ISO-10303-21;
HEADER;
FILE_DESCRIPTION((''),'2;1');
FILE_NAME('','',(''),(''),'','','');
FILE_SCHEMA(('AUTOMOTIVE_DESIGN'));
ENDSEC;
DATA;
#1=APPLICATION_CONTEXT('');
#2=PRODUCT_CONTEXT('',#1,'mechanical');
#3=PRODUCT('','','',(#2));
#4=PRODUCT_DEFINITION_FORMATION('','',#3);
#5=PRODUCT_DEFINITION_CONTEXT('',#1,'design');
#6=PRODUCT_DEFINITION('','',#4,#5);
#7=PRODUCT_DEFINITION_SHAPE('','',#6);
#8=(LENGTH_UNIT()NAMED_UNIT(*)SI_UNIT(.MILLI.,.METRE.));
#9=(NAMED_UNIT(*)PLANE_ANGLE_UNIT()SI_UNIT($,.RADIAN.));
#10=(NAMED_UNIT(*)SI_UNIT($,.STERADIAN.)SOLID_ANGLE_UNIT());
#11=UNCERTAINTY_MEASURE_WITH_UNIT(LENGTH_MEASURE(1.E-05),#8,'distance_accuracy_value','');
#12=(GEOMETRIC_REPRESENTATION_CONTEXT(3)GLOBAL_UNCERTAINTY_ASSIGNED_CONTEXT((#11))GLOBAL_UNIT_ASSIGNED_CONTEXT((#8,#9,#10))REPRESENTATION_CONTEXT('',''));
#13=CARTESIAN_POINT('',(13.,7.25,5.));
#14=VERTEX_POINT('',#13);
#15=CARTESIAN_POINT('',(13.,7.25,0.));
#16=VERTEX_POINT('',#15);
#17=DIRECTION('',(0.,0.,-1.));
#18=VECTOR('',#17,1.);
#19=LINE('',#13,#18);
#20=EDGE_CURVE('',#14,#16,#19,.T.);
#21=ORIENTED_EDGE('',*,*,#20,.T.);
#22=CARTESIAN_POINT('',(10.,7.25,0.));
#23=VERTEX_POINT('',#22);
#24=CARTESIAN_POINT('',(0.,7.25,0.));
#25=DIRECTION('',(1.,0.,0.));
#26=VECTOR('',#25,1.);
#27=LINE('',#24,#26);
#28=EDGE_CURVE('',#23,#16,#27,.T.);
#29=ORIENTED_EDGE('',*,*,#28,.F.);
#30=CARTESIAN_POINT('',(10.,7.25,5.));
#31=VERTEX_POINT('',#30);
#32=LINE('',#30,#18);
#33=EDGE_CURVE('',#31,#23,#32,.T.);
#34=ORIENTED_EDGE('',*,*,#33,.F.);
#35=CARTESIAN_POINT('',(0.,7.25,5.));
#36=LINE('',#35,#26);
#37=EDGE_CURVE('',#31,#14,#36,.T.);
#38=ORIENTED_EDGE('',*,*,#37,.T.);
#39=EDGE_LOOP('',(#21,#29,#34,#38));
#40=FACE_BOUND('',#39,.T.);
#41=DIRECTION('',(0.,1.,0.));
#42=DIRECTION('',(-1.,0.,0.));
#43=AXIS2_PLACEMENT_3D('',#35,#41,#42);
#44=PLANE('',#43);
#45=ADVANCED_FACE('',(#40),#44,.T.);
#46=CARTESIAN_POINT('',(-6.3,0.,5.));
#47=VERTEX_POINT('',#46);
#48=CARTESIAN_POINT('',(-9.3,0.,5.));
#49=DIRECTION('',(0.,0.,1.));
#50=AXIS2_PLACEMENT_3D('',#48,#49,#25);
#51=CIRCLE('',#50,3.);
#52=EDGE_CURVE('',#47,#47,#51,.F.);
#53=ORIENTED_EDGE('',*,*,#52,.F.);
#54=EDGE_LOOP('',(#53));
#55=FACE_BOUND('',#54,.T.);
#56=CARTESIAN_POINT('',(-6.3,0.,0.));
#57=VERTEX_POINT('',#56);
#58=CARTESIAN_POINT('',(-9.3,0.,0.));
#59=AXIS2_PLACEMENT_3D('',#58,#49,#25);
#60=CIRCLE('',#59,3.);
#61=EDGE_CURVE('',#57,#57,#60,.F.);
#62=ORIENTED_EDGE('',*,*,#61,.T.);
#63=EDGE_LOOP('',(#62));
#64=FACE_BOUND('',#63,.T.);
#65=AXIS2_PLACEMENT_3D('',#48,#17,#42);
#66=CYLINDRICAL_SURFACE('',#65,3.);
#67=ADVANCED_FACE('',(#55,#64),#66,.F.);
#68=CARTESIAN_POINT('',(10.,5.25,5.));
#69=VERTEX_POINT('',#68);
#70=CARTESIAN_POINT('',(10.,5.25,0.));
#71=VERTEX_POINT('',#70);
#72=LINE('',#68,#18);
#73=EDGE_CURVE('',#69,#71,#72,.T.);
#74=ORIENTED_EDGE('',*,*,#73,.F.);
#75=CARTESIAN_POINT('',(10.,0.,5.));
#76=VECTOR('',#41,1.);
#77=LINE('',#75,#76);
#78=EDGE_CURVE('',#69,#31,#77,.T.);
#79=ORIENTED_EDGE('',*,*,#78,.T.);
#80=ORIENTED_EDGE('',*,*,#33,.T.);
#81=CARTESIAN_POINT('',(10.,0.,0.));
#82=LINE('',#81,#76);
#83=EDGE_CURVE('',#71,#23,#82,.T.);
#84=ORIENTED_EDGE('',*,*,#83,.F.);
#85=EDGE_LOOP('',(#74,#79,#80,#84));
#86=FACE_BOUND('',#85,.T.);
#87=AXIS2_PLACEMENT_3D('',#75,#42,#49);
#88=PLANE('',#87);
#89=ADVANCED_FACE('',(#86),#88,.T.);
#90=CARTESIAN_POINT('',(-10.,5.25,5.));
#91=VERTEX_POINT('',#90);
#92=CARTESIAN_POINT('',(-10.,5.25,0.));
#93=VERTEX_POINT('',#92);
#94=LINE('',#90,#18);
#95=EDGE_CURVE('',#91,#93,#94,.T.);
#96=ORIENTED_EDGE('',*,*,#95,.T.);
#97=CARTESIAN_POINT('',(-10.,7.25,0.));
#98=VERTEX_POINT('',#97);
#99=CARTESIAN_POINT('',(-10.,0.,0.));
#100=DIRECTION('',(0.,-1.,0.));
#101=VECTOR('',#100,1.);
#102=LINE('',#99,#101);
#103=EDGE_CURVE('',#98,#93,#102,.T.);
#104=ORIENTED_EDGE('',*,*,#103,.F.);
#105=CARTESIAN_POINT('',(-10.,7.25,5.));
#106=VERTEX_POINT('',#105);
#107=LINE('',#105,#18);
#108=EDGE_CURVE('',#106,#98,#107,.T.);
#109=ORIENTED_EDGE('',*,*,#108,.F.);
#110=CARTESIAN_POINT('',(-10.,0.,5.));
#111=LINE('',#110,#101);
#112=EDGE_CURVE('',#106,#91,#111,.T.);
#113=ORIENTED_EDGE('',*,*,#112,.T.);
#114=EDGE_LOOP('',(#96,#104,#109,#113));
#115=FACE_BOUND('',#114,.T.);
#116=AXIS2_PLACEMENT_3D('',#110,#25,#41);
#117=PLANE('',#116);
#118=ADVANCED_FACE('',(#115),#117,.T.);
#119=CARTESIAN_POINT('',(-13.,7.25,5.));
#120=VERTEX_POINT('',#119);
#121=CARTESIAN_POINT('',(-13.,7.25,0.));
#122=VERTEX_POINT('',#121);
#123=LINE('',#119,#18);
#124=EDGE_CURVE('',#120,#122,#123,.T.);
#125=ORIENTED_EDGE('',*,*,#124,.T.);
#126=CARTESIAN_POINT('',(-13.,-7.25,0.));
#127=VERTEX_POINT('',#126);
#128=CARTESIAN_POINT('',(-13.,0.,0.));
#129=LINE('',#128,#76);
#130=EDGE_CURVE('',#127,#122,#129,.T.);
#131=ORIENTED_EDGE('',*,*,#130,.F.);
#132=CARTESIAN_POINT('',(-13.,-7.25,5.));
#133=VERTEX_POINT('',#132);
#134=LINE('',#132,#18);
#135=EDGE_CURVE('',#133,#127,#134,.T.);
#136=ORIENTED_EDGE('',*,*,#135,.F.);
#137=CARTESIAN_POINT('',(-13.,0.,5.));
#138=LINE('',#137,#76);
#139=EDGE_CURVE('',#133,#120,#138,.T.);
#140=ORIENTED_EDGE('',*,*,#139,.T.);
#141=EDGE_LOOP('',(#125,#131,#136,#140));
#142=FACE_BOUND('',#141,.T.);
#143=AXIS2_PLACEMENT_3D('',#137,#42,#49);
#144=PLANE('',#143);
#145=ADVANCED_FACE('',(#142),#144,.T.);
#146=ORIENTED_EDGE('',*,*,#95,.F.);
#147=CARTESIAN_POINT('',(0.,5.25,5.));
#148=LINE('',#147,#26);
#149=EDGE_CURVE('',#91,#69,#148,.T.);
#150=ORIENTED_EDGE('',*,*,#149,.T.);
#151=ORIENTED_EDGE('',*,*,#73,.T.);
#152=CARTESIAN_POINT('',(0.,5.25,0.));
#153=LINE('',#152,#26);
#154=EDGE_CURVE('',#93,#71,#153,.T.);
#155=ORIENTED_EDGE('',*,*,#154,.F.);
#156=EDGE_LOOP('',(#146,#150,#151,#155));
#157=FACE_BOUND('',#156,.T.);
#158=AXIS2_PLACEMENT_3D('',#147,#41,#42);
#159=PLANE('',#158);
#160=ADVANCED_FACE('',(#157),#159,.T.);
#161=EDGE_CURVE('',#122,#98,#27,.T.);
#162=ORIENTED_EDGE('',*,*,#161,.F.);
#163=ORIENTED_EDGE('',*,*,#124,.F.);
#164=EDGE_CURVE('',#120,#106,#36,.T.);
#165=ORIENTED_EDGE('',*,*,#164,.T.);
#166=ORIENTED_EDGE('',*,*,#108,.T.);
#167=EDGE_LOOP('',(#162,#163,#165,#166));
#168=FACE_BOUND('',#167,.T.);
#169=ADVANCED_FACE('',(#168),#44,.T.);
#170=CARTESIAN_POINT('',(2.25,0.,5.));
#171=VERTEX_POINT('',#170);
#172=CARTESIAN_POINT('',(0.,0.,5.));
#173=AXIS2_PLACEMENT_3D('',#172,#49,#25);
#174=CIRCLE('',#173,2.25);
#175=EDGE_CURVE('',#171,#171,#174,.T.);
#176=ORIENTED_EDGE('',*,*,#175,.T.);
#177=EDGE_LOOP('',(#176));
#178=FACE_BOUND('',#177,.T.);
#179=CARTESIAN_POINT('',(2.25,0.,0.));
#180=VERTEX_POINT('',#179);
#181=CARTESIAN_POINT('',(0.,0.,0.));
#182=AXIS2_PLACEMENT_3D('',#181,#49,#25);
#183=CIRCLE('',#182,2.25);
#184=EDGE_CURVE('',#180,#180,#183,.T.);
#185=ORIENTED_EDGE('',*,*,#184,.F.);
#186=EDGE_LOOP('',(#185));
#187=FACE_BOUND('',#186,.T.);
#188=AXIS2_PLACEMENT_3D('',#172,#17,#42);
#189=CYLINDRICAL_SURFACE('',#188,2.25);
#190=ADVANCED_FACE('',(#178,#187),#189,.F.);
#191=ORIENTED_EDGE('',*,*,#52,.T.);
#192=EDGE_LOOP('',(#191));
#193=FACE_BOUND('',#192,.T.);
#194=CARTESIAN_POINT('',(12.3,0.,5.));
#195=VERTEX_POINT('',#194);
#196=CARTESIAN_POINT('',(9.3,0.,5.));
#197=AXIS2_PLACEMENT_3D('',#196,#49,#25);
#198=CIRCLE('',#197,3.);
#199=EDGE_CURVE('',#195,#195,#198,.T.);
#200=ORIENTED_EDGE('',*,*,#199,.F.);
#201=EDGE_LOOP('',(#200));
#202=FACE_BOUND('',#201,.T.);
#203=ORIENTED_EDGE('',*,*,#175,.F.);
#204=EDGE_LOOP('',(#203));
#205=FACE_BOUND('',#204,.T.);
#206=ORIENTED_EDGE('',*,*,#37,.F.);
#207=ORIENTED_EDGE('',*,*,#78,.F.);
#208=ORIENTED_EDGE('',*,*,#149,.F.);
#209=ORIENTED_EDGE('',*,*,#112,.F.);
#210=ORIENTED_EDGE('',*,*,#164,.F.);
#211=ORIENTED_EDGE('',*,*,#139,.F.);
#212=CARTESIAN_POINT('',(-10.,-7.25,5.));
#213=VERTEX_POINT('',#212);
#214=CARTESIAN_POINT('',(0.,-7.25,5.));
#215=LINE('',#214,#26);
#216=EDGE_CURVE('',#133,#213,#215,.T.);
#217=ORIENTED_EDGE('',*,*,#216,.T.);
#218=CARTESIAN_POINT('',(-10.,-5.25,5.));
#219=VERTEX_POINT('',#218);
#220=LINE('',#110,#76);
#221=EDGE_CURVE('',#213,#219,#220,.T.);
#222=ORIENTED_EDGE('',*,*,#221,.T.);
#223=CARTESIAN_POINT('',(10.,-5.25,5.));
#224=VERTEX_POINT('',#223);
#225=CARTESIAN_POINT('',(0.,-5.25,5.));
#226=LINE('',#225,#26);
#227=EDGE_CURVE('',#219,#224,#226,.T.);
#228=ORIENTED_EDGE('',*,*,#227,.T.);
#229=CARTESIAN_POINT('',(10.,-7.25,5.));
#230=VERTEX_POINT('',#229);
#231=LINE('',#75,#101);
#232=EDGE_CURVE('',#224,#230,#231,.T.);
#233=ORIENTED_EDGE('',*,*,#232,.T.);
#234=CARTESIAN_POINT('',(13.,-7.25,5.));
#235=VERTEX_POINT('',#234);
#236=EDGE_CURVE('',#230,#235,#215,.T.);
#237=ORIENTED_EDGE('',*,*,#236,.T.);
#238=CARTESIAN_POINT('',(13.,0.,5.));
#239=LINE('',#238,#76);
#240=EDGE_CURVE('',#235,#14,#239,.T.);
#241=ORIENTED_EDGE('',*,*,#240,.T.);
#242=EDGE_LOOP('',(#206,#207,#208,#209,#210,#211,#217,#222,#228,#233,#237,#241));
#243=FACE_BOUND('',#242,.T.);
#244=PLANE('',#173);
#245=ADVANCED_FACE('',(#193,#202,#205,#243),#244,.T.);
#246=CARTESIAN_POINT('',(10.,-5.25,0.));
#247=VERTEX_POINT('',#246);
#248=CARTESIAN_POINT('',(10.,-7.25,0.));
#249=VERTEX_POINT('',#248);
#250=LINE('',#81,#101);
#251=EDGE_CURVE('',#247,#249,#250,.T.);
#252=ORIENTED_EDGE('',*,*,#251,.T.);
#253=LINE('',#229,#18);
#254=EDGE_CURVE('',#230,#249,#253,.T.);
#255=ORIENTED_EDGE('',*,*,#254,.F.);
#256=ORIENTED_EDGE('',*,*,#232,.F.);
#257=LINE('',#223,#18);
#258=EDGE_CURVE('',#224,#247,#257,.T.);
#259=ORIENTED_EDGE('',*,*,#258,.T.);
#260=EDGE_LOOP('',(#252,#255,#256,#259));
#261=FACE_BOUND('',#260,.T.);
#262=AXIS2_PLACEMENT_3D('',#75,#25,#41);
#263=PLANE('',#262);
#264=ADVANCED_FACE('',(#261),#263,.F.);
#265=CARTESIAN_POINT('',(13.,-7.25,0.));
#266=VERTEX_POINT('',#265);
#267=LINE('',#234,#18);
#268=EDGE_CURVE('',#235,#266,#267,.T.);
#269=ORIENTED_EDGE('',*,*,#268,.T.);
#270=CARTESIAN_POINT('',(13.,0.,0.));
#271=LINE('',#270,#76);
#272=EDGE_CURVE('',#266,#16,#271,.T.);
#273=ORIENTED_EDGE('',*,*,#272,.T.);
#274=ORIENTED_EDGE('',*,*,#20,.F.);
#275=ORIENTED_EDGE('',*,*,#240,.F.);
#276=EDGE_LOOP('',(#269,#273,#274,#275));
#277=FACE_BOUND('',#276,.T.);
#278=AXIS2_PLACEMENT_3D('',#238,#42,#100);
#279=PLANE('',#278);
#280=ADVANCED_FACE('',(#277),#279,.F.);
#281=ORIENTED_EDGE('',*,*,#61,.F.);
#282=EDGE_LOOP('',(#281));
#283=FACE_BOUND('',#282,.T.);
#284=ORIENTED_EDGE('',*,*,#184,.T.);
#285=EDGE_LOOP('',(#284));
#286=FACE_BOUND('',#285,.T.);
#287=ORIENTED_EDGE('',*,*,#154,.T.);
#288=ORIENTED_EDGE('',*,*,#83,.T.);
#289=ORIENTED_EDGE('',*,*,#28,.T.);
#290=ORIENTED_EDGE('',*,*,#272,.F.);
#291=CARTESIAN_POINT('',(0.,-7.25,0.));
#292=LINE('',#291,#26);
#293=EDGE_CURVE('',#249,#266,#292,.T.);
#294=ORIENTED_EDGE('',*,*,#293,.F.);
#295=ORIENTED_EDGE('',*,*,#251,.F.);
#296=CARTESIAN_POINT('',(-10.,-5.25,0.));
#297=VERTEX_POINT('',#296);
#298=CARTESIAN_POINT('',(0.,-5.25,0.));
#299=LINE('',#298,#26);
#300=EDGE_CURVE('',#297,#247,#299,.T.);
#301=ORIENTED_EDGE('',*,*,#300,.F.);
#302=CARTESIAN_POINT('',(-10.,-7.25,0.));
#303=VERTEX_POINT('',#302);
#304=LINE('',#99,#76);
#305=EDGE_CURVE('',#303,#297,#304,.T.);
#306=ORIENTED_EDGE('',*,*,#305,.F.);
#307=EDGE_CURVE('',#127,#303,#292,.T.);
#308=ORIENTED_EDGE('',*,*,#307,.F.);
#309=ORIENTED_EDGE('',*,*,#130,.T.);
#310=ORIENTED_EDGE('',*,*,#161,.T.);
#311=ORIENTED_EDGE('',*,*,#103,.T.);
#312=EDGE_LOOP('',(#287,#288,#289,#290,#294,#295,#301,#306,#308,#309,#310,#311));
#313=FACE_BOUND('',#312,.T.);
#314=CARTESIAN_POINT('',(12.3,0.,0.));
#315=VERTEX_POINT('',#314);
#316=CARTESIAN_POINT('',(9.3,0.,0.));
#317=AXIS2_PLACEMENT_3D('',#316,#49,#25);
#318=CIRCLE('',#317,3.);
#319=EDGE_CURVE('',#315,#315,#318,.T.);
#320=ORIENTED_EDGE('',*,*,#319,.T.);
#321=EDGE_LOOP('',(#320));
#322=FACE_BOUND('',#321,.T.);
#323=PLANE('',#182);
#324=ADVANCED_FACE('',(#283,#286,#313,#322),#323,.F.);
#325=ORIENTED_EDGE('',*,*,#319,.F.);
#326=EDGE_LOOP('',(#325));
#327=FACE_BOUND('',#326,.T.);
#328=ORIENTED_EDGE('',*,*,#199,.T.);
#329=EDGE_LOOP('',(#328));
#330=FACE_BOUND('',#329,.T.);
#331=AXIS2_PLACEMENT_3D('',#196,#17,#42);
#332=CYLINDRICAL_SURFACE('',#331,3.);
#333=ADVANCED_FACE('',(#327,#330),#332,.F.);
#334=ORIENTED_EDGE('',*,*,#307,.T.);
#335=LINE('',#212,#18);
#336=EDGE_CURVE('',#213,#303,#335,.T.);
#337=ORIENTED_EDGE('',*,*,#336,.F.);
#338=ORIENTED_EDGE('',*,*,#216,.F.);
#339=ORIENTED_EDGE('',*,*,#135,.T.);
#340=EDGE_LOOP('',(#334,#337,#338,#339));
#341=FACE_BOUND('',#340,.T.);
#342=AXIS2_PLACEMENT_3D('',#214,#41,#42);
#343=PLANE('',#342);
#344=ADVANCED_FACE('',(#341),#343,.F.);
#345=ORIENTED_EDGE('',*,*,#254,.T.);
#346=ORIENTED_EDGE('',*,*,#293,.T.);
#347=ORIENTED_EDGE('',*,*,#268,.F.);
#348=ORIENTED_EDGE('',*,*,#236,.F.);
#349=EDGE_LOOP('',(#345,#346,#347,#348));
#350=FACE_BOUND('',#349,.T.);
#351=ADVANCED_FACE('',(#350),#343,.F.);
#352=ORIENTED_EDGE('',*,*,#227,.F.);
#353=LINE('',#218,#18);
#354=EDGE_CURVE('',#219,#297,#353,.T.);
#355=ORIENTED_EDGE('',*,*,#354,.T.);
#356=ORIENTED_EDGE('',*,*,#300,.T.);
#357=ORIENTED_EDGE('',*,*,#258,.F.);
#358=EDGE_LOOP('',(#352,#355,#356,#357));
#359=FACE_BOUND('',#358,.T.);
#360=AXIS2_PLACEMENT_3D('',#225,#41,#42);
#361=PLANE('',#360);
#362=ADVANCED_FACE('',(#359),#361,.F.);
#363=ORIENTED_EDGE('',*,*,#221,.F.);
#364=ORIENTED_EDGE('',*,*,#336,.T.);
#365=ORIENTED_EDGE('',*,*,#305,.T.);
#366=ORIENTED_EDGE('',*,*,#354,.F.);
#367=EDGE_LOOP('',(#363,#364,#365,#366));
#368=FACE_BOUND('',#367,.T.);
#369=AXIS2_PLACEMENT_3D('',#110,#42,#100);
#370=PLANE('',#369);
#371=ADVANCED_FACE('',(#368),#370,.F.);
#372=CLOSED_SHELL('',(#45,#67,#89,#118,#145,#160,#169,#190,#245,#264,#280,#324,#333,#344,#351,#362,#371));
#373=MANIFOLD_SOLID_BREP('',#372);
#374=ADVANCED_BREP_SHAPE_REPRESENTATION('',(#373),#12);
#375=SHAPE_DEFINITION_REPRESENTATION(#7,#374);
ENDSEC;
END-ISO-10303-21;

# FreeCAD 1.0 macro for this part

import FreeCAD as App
import Part
import Sketcher
Q = App.Units.Quantity

doc = App.newDocument("Part")
params = doc.addObject("Spreadsheet::Sheet", "Params")
for row, (alias, value) in enumerate([
    ("sketch1_diameter", "6 mm"),
    ("sketch1_diameter2", "4.5 mm"),
    ("sketch1_width", "3 mm"),
    ("sketch1_width2", "20 mm"),
    ("sketch1_height", "2 mm"),
    ("pad1_length", "5 mm"),
], start=1):
    params.set(f"A{row}", alias)
    params.set(f"B{row}", "=" + value)
    params.setAlias(f"B{row}", alias)

body = doc.addObject("PartDesign::Body", "Body")

# Sketch on XY plane
sketch1 = body.newObject("Sketcher::SketchObject", "Sketch")
sketch1.AttachmentSupport = (doc.getObject("XY_Plane"), [""])
sketch1.MapMode = "FlatFace"
sketch1.addGeometry(Part.LineSegment(App.Vector(-13, 7.25, 0), App.Vector(-13, -7.25, 0)), False)
sketch1.addGeometry(Part.LineSegment(App.Vector(-13, -7.25, 0), App.Vector(-10, -7.25, 0)), False)
sketch1.addGeometry(Part.LineSegment(App.Vector(-10, -7.25, 0), App.Vector(-10, -5.25, 0)), False)
sketch1.addGeometry(Part.LineSegment(App.Vector(-10, -5.25, 0), App.Vector(10, -5.25, 0)), False)
sketch1.addGeometry(Part.LineSegment(App.Vector(10, -5.25, 0), App.Vector(10, -7.25, 0)), False)
sketch1.addGeometry(Part.LineSegment(App.Vector(10, -7.25, 0), App.Vector(13, -7.25, 0)), False)
sketch1.addGeometry(Part.LineSegment(App.Vector(13, -7.25, 0), App.Vector(13, 7.25, 0)), False)
sketch1.addGeometry(Part.LineSegment(App.Vector(13, 7.25, 0), App.Vector(10, 7.25, 0)), False)
sketch1.addGeometry(Part.LineSegment(App.Vector(10, 7.25, 0), App.Vector(10, 5.25, 0)), False)
sketch1.addGeometry(Part.LineSegment(App.Vector(10, 5.25, 0), App.Vector(-10, 5.25, 0)), False)
sketch1.addGeometry(Part.LineSegment(App.Vector(-10, 5.25, 0), App.Vector(-10, 7.25, 0)), False)
sketch1.addGeometry(Part.LineSegment(App.Vector(-10, 7.25, 0), App.Vector(-13, 7.25, 0)), False)
sketch1.addGeometry(Part.Circle(App.Vector(-9.3, 0, 0), App.Vector(0, 0, 1), 3), False)
sketch1.addGeometry(Part.Circle(App.Vector(0, 0, 0), App.Vector(0, 0, 1), 2.25), False)
sketch1.addGeometry(Part.Circle(App.Vector(9.3, 0, 0), App.Vector(0, 0, 1), 3), False)
sketch1.addConstraint(Sketcher.Constraint("Coincident", 0, 2, 1, 1))
sketch1.addConstraint(Sketcher.Constraint("Coincident", 1, 2, 2, 1))
sketch1.addConstraint(Sketcher.Constraint("Coincident", 2, 2, 3, 1))
sketch1.addConstraint(Sketcher.Constraint("Coincident", 3, 2, 4, 1))
sketch1.addConstraint(Sketcher.Constraint("Coincident", 4, 2, 5, 1))
sketch1.addConstraint(Sketcher.Constraint("Coincident", 5, 2, 6, 1))
sketch1.addConstraint(Sketcher.Constraint("Coincident", 6, 2, 7, 1))
sketch1.addConstraint(Sketcher.Constraint("Coincident", 7, 2, 8, 1))
sketch1.addConstraint(Sketcher.Constraint("Coincident", 8, 2, 9, 1))
sketch1.addConstraint(Sketcher.Constraint("Coincident", 9, 2, 10, 1))
sketch1.addConstraint(Sketcher.Constraint("Coincident", 10, 2, 11, 1))
sketch1.addConstraint(Sketcher.Constraint("Coincident", 11, 2, 0, 1))
sketch1.addConstraint(Sketcher.Constraint("Vertical", 0))
sketch1.addConstraint(Sketcher.Constraint("Horizontal", 1))
sketch1.addConstraint(Sketcher.Constraint("Vertical", 2))
sketch1.addConstraint(Sketcher.Constraint("Horizontal", 3))
sketch1.addConstraint(Sketcher.Constraint("Vertical", 4))
sketch1.addConstraint(Sketcher.Constraint("Horizontal", 5))
sketch1.addConstraint(Sketcher.Constraint("Vertical", 6))
sketch1.addConstraint(Sketcher.Constraint("Horizontal", 7))
sketch1.addConstraint(Sketcher.Constraint("Vertical", 8))
sketch1.addConstraint(Sketcher.Constraint("Horizontal", 9))
sketch1.addConstraint(Sketcher.Constraint("Vertical", 10))
sketch1.addConstraint(Sketcher.Constraint("Horizontal", 11))
sketch1.addConstraint(Sketcher.Constraint("Coincident", 13, 3, -1, 1))
sketch1.addConstraint(Sketcher.Constraint("Equal", 12, 14))
sketch1.addConstraint(Sketcher.Constraint("Symmetric", 12, 3, 14, 3, -1, 1))
sketch1.addConstraint(Sketcher.Constraint("Symmetric", 0, 2, 6, 2, -1, 1))
sketch1.addConstraint(Sketcher.Constraint("Symmetric", 2, 2, 8, 2, -1, 1))
sketch1.addConstraint(Sketcher.Constraint("Symmetric", 4, 2, 10, 2, -1, 1))
sketch1.addConstraint(Sketcher.Constraint("Symmetric", 1, 2, 4, 2, -2))
sketch1.addConstraint(Sketcher.Constraint("PointOnObject", 12, 3, -1))
sketch1.addConstraint(Sketcher.Constraint("Diameter", 12, Q("6 mm")))
sketch1.addConstraint(Sketcher.Constraint("Diameter", 13, Q("4.5 mm")))
sketch1.addConstraint(Sketcher.Constraint("DistanceX", 1, 1, 1, 2, Q("3 mm")))
sketch1.addConstraint(Sketcher.Constraint("DistanceX", 3, 1, 3, 2, Q("20 mm")))
sketch1.addConstraint(Sketcher.Constraint("DistanceY", 2, 1, 2, 2, Q("2 mm")))
sketch1.addConstraint(Sketcher.Constraint("DistanceY", 0, 2, 0, 1, Q("14.5 mm")))
sketch1.addConstraint(Sketcher.Constraint("DistanceX", 12, 3, -1, 1, Q("9.3 mm")))
sketch1.setExpression("Constraints[32]", "Params.sketch1_diameter")
sketch1.setExpression("Constraints[33]", "Params.sketch1_diameter2")
sketch1.setExpression("Constraints[34]", "Params.sketch1_width")
sketch1.setExpression("Constraints[35]", "Params.sketch1_width2")
sketch1.setExpression("Constraints[36]", "Params.sketch1_height")
pad1 = body.newObject("PartDesign::Pad", "Pad")
pad1.Profile = sketch1
pad1.setExpression("Length", "Params.pad1_length")

doc.recompute()
